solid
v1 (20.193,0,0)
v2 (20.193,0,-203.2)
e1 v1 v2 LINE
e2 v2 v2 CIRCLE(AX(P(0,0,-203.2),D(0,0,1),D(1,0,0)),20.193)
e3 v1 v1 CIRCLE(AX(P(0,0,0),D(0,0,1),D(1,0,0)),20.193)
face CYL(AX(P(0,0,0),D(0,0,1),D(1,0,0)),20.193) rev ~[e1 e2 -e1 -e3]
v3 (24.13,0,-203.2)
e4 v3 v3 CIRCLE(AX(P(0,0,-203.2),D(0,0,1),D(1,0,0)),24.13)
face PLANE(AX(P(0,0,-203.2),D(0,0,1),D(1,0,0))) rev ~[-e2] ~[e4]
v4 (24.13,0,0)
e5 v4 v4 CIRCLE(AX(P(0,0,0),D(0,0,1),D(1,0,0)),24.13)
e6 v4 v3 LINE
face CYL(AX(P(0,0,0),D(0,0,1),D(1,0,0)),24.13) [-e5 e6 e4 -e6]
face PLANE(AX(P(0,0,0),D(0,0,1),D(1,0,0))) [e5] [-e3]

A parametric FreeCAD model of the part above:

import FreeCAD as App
import Part
import Sketcher

V = App.Vector
Q = App.Units.Quantity

doc = App.newDocument("Part")
body = doc.addObject("PartDesign::Body", "Body")

# Sketch on XY plane
sketch1 = body.newObject("Sketcher::SketchObject", "Sketch")
sketch1.AttachmentSupport = (doc.getObject("XY_Plane"), [""])
sketch1.MapMode = "FlatFace"
sketch1.addGeometry([
    Part.Circle(V(0, 0, 0), V(0, 0, 1), 24),
    Part.Circle(V(0, 0, 0), V(0, 0, 1), 20),
], False)
sketch1.addConstraint([
    Sketcher.Constraint("Coincident", 0, 3, -1, 1),
    Sketcher.Constraint("Coincident", 1, 3, -1, 1),
    Sketcher.Constraint("Diameter", 0, Q("1.9 in")),
    Sketcher.Constraint("Diameter", 1, Q("1.59 in")),
])
pad1 = body.newObject("PartDesign::Pad", "Pad")
pad1.Profile = sketch1
pad1.Length = Q("8 in")
pad1.Reversed = True

doc.recompute()
